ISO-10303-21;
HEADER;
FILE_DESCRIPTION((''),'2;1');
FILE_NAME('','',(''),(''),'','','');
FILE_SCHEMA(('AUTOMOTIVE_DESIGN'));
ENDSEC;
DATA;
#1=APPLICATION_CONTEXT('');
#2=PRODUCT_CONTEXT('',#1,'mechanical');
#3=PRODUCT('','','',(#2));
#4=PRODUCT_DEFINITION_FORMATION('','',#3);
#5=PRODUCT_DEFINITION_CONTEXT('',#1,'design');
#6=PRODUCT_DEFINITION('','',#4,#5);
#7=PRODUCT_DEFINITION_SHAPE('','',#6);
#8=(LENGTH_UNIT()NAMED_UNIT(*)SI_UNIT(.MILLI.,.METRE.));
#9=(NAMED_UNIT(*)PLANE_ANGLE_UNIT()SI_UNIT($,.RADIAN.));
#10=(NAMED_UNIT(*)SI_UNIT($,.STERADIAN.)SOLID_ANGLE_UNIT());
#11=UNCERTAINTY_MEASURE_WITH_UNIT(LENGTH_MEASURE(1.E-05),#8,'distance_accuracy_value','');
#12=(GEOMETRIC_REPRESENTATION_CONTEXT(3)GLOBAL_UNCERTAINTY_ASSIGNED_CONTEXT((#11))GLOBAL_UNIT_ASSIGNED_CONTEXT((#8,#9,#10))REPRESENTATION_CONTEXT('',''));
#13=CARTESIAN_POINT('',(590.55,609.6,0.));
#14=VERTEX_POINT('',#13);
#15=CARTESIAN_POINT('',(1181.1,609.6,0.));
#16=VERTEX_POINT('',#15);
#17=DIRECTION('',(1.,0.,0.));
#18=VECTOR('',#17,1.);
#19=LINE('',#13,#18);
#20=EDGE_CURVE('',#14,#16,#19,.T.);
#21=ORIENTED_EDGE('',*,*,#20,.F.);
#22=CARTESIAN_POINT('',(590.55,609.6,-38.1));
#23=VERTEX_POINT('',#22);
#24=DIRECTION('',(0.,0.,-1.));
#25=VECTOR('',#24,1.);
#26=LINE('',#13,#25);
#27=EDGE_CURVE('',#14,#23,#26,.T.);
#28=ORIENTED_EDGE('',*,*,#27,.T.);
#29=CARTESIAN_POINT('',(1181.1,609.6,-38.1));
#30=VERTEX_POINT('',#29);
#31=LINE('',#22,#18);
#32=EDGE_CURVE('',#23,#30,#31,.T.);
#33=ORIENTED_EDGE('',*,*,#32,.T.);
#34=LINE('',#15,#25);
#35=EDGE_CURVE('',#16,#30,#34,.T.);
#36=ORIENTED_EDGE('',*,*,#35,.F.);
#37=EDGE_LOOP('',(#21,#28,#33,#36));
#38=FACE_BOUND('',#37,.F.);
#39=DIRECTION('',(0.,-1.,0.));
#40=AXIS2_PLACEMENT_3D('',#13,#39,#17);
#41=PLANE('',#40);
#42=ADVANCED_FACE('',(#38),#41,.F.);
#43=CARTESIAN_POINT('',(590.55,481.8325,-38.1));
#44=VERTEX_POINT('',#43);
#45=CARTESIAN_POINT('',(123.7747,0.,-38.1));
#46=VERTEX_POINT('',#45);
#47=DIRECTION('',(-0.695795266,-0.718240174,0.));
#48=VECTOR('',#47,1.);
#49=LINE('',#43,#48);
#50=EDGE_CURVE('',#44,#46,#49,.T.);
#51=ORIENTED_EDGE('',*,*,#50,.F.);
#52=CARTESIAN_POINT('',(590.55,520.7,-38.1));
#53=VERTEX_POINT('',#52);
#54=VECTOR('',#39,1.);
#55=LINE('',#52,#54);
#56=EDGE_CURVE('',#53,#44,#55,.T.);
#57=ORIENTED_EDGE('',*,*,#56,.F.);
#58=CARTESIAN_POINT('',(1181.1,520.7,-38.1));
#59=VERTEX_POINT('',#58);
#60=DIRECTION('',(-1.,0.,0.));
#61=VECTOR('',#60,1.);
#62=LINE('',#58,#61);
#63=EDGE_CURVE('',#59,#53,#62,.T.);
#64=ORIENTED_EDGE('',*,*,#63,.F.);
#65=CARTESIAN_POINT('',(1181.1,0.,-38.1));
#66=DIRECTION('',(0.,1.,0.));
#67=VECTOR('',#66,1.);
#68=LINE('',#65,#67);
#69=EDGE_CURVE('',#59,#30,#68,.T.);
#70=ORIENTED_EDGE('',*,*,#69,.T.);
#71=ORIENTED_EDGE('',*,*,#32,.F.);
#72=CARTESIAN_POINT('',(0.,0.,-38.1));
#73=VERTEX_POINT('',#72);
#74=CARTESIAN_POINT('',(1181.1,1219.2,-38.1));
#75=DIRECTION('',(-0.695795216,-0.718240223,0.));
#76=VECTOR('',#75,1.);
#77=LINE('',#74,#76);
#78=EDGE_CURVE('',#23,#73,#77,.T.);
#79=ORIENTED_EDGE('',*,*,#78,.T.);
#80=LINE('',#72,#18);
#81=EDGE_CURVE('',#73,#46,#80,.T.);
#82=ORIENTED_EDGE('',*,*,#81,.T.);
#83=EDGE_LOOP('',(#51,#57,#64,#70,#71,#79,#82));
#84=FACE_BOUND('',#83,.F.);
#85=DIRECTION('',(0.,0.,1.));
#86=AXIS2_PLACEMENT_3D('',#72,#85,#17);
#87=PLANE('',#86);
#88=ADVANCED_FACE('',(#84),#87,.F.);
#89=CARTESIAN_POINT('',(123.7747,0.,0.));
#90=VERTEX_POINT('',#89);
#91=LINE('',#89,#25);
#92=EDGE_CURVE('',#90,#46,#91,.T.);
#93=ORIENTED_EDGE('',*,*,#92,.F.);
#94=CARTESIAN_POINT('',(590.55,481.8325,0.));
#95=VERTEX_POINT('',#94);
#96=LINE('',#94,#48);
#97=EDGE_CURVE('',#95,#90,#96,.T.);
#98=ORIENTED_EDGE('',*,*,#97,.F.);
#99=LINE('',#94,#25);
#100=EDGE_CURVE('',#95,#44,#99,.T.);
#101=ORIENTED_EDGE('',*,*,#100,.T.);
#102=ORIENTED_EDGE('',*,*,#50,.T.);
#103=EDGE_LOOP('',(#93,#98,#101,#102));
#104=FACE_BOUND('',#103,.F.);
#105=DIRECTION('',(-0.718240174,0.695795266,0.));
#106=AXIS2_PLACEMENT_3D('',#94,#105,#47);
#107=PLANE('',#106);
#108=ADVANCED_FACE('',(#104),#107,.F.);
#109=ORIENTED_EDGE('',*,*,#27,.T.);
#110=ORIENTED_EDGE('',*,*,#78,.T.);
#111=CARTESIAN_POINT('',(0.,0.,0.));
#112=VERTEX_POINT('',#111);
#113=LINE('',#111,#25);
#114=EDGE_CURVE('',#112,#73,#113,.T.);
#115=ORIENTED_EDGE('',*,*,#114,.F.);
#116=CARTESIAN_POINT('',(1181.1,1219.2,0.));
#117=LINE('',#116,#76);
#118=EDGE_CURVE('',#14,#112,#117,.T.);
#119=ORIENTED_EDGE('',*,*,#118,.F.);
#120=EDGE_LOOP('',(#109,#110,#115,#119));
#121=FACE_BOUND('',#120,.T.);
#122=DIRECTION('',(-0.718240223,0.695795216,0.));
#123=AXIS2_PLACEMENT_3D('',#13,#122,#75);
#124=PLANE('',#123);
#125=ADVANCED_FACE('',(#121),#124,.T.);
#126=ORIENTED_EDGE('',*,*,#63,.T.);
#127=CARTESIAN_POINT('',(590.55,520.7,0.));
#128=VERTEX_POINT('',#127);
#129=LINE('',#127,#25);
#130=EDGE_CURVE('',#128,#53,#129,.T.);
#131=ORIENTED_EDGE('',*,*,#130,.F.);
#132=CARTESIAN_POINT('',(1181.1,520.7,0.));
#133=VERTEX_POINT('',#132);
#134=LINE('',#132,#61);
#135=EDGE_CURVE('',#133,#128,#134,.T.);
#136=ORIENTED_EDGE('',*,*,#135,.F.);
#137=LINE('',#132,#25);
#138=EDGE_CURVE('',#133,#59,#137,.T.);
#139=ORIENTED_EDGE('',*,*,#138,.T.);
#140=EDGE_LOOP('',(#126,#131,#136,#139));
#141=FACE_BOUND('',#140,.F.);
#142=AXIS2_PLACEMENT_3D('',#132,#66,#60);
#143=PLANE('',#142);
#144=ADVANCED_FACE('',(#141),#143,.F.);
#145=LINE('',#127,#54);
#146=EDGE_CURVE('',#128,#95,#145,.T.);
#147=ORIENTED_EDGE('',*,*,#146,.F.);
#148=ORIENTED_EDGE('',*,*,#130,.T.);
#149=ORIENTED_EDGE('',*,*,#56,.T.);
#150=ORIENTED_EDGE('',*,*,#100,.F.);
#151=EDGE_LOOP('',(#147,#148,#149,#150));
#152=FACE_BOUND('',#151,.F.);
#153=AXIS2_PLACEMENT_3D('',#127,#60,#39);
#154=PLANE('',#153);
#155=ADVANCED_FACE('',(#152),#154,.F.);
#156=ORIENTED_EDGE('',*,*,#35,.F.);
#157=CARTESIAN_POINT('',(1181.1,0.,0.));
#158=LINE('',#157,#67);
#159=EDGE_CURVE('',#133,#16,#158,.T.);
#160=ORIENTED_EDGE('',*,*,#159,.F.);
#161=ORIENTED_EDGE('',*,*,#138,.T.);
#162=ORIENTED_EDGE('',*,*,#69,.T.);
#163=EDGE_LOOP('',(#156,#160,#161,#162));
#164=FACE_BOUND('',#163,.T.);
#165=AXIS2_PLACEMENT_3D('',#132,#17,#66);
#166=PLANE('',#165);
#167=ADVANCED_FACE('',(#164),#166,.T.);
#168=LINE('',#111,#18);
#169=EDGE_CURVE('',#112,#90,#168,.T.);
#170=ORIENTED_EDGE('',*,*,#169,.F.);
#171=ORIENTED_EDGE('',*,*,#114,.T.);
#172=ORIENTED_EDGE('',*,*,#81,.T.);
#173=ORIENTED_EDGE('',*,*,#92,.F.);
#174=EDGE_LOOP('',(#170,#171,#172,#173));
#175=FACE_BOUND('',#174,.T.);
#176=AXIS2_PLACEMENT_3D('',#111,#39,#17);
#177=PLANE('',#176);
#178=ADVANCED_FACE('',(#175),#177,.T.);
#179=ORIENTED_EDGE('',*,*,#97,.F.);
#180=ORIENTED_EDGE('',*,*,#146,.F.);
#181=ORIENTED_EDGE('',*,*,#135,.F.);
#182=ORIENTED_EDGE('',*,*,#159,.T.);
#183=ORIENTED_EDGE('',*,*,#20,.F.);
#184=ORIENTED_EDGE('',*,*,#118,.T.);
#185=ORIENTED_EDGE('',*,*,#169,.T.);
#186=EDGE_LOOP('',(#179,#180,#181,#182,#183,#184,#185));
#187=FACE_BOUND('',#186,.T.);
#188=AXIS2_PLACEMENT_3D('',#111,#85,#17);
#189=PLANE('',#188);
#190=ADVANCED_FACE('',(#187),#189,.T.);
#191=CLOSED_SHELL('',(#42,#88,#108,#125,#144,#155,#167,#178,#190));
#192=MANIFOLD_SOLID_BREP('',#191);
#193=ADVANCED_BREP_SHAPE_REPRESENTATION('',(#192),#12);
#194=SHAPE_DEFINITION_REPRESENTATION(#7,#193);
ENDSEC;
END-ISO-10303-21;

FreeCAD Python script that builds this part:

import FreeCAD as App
import Part
import Sketcher

V = App.Vector
Q = App.Units.Quantity

doc = App.newDocument("Part")
params = doc.addObject("Spreadsheet::Sheet", "Params")
for row, (alias, value) in enumerate([
    ("sketch1_height", "3.5 in"),
    ("sketch1_width", "23.25 in"),
    ("pad1_length", "1.5 in"),
], start=1):
    params.set(f"A{row}", alias)
    params.set(f"B{row}", "=" + value)
    params.setAlias(f"B{row}", alias)

body = doc.addObject("PartDesign::Body", "Body")

sketch1 = body.newObject("Sketcher::SketchObject", "Sketch")
sketch1.AttachmentSupport = (doc.getObject("XY_Plane"), [""])
sketch1.MapMode = "FlatFace"
sketch1.addGeometry([
    Part.LineSegment(V(591, 610, 0), V(0, 0, 0)),
    Part.LineSegment(V(0, 0, 0), V(124, 0, 0)),
    Part.LineSegment(V(124, 0, 0), V(591, 482, 0)),
    Part.LineSegment(V(591, 482, 0), V(591, 521, 0)),
    Part.LineSegment(V(591, 521, 0), V(1181, 521, 0)),
    Part.LineSegment(V(1181, 521, 0), V(1181, 610, 0)),
    Part.LineSegment(V(1181, 610, 0), V(591, 610, 0)),
], False)
sketch1.addConstraint([
    Sketcher.Constraint("Coincident", 0, 2, 1, 1),
    Sketcher.Constraint("Coincident", 1, 2, 2, 1),
    Sketcher.Constraint("Coincident", 2, 2, 3, 1),
    Sketcher.Constraint("Coincident", 3, 2, 4, 1),
    Sketcher.Constraint("Coincident", 4, 2, 5, 1),
    Sketcher.Constraint("Coincident", 5, 2, 6, 1),
    Sketcher.Constraint("Coincident", 6, 2, 0, 1),
    Sketcher.Constraint("Horizontal", 1),
    Sketcher.Constraint("Vertical", 3),
    Sketcher.Constraint("Horizontal", 4),
    Sketcher.Constraint("Vertical", 5),
    Sketcher.Constraint("Horizontal", 6),
    Sketcher.Constraint("Coincident", 0, 2, -1, 1),
    Sketcher.Constraint("Parallel", 0, 2),
    Sketcher.Constraint("Vertical", 3, 2, 6, 2),
    Sketcher.Constraint("DistanceY", 5, 1, 5, 2, Q("3.5 in")),
    Sketcher.Constraint("DistanceY", -1, 1, 5, 2, Q("24 in")),
    Sketcher.Constraint("DistanceX", 4, 1, 4, 2, Q("23.25 in")),
    Sketcher.Constraint("DistanceX", -1, 1, 4, 2, Q("46.5 in")),
    Sketcher.Constraint("DistanceX", 1, 1, 1, 2, 123.7747),
])
sketch1.setExpression("Constraints[15]", "Params.sketch1_height")
sketch1.setExpression("Constraints[17]", "Params.sketch1_width")
pad1 = body.newObject("PartDesign::Pad", "Pad")
pad1.Profile = sketch1
pad1.setExpression("Length", "Params.pad1_length")
pad1.Reversed = True

doc.recompute()
